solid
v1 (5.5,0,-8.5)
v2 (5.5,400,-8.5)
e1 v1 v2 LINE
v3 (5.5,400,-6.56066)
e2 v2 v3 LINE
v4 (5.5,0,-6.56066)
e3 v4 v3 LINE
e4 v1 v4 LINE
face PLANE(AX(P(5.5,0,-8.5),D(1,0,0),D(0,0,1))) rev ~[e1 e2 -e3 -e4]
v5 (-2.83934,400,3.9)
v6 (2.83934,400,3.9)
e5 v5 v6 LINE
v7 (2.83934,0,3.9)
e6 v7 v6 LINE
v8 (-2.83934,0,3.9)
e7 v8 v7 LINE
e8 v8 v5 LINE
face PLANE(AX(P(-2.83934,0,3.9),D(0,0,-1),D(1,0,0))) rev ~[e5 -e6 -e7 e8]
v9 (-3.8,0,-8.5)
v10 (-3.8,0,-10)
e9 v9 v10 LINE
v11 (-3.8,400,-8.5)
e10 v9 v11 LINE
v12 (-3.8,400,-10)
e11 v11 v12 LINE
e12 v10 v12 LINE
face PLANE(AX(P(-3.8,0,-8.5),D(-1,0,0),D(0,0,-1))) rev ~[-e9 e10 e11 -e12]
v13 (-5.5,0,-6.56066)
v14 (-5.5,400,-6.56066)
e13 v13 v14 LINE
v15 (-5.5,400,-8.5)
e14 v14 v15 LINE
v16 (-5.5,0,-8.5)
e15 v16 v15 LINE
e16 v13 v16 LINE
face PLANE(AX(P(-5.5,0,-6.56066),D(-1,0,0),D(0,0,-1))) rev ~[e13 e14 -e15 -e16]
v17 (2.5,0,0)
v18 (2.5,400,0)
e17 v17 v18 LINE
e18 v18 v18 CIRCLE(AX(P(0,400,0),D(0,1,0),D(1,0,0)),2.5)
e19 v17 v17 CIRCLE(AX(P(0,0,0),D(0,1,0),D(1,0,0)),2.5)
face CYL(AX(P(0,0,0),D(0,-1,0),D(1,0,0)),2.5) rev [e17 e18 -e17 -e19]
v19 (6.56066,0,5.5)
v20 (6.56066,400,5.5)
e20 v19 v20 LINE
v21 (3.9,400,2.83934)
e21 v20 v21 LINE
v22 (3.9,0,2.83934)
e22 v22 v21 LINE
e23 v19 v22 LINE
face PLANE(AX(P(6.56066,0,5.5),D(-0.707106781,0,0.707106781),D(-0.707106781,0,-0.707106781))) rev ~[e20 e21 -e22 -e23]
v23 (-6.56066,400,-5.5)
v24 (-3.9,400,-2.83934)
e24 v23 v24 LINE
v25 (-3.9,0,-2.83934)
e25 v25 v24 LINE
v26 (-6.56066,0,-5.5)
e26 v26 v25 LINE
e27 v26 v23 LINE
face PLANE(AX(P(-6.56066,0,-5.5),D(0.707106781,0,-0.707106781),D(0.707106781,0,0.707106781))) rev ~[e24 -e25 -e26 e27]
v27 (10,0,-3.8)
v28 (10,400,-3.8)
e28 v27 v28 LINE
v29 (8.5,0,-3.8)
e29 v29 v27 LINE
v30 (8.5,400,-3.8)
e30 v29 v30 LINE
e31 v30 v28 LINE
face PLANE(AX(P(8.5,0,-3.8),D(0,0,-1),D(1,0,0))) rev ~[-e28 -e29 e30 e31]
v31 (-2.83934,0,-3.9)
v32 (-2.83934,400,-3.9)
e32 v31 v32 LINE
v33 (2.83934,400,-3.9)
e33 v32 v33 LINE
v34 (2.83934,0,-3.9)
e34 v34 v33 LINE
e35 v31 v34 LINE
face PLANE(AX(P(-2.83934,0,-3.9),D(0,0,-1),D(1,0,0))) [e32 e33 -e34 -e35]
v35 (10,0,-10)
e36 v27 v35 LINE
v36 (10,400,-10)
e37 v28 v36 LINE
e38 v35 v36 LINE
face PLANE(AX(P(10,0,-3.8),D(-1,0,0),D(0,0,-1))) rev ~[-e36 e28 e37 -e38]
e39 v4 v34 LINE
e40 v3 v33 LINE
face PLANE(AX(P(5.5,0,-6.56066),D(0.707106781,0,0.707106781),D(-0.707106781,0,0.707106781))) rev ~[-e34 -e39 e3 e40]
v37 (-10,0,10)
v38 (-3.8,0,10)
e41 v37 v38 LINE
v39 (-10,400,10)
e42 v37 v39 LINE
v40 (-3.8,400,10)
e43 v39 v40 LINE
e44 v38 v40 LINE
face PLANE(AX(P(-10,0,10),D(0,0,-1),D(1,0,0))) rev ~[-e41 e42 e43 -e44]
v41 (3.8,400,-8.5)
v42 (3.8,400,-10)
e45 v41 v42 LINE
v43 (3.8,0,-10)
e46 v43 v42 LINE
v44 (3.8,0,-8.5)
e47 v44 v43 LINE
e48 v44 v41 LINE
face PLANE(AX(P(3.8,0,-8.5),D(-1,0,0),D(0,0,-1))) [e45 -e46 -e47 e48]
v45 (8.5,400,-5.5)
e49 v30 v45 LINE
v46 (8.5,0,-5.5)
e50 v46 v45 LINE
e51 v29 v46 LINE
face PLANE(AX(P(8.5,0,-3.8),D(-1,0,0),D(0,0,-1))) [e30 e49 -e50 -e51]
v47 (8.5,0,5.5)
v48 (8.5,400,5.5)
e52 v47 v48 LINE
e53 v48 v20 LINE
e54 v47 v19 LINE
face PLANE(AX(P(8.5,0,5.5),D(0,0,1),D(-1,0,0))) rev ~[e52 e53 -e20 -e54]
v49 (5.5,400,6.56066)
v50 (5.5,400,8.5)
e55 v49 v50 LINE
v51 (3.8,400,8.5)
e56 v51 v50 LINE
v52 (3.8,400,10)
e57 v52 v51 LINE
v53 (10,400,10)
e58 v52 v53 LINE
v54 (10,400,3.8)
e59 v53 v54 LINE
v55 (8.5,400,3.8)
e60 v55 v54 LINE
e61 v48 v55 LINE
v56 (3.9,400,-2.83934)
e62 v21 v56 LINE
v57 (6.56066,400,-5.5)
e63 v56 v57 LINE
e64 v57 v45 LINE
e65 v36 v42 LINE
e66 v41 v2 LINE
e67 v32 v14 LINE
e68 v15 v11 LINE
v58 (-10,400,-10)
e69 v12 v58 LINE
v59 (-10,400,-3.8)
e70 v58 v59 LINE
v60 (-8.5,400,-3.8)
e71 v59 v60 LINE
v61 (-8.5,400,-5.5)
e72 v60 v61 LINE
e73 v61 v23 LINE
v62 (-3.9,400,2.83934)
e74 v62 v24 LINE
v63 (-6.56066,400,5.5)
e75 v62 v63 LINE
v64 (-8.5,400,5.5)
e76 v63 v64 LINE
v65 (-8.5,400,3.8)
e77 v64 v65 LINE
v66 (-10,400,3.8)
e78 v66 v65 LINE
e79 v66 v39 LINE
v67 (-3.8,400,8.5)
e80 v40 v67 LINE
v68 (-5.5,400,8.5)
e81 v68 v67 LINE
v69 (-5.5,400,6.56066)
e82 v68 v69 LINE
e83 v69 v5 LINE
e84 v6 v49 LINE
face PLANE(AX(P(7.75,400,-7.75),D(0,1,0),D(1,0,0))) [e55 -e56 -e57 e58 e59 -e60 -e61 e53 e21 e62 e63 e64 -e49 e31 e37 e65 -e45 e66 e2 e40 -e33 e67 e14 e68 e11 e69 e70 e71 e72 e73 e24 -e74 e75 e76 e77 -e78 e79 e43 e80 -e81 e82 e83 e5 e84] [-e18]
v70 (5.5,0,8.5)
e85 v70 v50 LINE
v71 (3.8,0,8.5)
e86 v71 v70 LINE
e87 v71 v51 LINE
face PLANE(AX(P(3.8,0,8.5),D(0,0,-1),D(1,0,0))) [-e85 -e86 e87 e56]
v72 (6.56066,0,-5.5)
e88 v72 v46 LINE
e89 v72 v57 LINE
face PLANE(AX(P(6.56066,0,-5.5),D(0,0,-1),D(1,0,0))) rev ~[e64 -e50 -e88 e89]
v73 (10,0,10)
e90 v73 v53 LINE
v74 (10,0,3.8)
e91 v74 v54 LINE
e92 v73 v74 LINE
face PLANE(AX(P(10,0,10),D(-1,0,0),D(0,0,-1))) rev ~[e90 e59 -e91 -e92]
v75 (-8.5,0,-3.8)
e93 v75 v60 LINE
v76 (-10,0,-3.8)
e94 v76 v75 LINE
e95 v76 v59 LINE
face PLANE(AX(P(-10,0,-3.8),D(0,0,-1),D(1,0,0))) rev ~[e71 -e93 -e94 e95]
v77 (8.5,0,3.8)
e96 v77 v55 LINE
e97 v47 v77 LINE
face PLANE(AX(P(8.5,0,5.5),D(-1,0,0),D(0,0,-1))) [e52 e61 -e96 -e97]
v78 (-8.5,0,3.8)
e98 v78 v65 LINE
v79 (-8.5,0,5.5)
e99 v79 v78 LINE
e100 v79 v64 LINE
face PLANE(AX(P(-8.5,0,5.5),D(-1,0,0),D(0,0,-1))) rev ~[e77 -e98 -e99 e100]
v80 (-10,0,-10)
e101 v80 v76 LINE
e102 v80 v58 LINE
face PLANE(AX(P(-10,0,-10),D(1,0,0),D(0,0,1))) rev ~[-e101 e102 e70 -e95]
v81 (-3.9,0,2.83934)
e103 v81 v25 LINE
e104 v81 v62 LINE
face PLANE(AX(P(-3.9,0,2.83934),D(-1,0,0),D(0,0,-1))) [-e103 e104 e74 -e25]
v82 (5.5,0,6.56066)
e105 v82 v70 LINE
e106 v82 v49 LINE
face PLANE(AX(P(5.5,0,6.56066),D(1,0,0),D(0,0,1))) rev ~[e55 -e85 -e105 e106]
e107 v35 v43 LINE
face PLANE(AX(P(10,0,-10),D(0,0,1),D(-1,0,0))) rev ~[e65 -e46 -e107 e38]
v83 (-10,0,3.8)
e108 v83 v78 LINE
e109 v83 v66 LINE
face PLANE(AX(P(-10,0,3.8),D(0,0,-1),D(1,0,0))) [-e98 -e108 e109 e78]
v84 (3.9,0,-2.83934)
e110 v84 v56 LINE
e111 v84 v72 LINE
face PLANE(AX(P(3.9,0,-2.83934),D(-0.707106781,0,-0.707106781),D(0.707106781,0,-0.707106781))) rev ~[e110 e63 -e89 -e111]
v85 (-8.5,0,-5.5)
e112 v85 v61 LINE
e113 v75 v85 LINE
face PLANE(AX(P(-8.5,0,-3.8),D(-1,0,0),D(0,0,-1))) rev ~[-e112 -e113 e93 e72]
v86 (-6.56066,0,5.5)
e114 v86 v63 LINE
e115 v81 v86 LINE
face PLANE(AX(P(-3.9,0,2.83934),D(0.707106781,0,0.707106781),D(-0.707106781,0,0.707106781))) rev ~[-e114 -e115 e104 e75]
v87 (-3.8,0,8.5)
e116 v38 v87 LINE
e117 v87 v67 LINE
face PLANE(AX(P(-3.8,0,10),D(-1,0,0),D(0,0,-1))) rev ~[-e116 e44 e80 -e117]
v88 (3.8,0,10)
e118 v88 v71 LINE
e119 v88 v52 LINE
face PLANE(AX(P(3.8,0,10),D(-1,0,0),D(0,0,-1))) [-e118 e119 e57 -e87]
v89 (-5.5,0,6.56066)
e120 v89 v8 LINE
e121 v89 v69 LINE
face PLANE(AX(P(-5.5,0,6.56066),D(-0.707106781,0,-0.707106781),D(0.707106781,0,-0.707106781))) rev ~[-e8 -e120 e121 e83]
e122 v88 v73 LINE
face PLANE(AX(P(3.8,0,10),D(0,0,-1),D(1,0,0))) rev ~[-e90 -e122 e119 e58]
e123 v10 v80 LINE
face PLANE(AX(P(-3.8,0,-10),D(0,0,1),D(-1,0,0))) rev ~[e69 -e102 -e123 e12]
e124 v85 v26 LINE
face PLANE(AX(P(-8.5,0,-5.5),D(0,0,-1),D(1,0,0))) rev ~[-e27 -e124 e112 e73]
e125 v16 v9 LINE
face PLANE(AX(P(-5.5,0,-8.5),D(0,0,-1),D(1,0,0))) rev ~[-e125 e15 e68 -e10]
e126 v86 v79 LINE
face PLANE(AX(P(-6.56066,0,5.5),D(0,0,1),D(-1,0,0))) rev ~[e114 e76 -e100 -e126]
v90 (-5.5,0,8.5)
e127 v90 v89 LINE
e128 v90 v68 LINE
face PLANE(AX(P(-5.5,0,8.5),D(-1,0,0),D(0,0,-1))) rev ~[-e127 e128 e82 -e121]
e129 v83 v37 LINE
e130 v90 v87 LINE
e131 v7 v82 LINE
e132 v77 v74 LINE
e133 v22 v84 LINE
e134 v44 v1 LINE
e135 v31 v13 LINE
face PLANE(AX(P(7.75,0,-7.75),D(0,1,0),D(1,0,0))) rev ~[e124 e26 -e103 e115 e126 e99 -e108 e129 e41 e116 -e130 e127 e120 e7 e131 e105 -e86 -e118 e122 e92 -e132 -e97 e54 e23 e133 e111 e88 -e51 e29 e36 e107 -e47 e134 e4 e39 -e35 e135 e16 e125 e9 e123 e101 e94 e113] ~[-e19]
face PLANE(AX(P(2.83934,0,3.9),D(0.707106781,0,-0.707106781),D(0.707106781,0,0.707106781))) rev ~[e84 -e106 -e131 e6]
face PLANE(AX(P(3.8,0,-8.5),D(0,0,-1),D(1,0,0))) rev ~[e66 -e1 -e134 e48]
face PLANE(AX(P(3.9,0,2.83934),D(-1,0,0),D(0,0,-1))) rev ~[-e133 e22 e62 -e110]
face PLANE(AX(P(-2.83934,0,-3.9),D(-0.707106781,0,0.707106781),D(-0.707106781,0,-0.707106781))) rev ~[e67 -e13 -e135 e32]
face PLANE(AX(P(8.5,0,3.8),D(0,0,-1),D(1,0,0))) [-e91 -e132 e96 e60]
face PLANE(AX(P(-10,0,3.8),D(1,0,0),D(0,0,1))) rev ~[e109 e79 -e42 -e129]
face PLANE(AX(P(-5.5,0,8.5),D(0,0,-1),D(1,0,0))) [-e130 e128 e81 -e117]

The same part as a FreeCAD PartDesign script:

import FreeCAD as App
import Part
import Sketcher


def add_polygon(sketch, points):
    """Adds a closed chain of lines whose ends are joined by coincident constraints."""
    first, n = sketch.GeometryCount, len(points)
    for a, b in zip(points, points[1:] + points[:1]):
        sketch.addGeometry(Part.LineSegment(App.Vector(*a, 0), App.Vector(*b, 0)), False)
    for i in range(n):
        sketch.addConstraint(Sketcher.Constraint("Coincident", first + i, 2, first + (i + 1) % n, 1))

doc = App.newDocument("Part")
body = doc.addObject("PartDesign::Body", "Body")

# Sketch on XZ plane
sketch1 = body.newObject("Sketcher::SketchObject", "Sketch")
sketch1.AttachmentSupport = (doc.getObject("XZ_Plane"), [""])
sketch1.MapMode = "FlatFace"
add_polygon(sketch1, [(6.56066, -5.5), (8.5, -5.5), (8.5, -3.8), (10, -3.8), (10, -10), (3.8, -10), (3.8, -8.5), (5.5, -8.5), (5.5, -6.56066), (2.83934, -3.9), (-2.83934, -3.9), (-5.5, -6.56066), (-5.5, -8.5), (-3.8, -8.5), (-3.8, -10), (-10, -10), (-10, -3.8), (-8.5, -3.8), (-8.5, -5.5), (-6.56066, -5.5), (-3.9, -2.83934), (-3.9, 2.83934), (-6.56066, 5.5), (-8.5, 5.5), (-8.5, 3.8), (-10, 3.8), (-10, 10), (-3.8, 10), (-3.8, 8.5), (-5.5, 8.5), (-5.5, 6.56066), (-2.83934, 3.9), (2.83934, 3.9), (5.5, 6.56066), (5.5, 8.5), (3.8, 8.5), (3.8, 10), (10, 10), (10, 3.8), (8.5, 3.8), (8.5, 5.5), (6.56066, 5.5), (3.9, 2.83934), (3.9, -2.83934)])  # lines 0-43
sketch1.addGeometry(Part.Circle(App.Vector(0, 0, 0), App.Vector(0, 0, 1), 2.5), False)  # 44
sketch1.addConstraint(Sketcher.Constraint("Horizontal", 0))
sketch1.addConstraint(Sketcher.Constraint("Vertical", 1))
sketch1.addConstraint(Sketcher.Constraint("Horizontal", 2))
sketch1.addConstraint(Sketcher.Constraint("Vertical", 3))
sketch1.addConstraint(Sketcher.Constraint("Horizontal", 4))
sketch1.addConstraint(Sketcher.Constraint("Vertical", 5))
sketch1.addConstraint(Sketcher.Constraint("Horizontal", 6))
sketch1.addConstraint(Sketcher.Constraint("Vertical", 7))
sketch1.addConstraint(Sketcher.Constraint("Horizontal", 9))
sketch1.addConstraint(Sketcher.Constraint("Vertical", 11))
sketch1.addConstraint(Sketcher.Constraint("Horizontal", 12))
sketch1.addConstraint(Sketcher.Constraint("Vertical", 13))
sketch1.addConstraint(Sketcher.Constraint("Horizontal", 14))
sketch1.addConstraint(Sketcher.Constraint("Vertical", 15))
sketch1.addConstraint(Sketcher.Constraint("Horizontal", 16))
sketch1.addConstraint(Sketcher.Constraint("Vertical", 17))
sketch1.addConstraint(Sketcher.Constraint("Horizontal", 18))
sketch1.addConstraint(Sketcher.Constraint("Vertical", 20))
sketch1.addConstraint(Sketcher.Constraint("Horizontal", 22))
sketch1.addConstraint(Sketcher.Constraint("Vertical", 23))
sketch1.addConstraint(Sketcher.Constraint("Horizontal", 24))
sketch1.addConstraint(Sketcher.Constraint("Vertical", 25))
sketch1.addConstraint(Sketcher.Constraint("Horizontal", 26))
sketch1.addConstraint(Sketcher.Constraint("Vertical", 27))
sketch1.addConstraint(Sketcher.Constraint("Horizontal", 28))
sketch1.addConstraint(Sketcher.Constraint("Vertical", 29))
sketch1.addConstraint(Sketcher.Constraint("Horizontal", 31))
sketch1.addConstraint(Sketcher.Constraint("Vertical", 33))
sketch1.addConstraint(Sketcher.Constraint("Horizontal", 34))
sketch1.addConstraint(Sketcher.Constraint("Vertical", 35))
sketch1.addConstraint(Sketcher.Constraint("Horizontal", 36))
sketch1.addConstraint(Sketcher.Constraint("Vertical", 37))
sketch1.addConstraint(Sketcher.Constraint("Horizontal", 38))
sketch1.addConstraint(Sketcher.Constraint("Vertical", 39))
sketch1.addConstraint(Sketcher.Constraint("Horizontal", 40))
sketch1.addConstraint(Sketcher.Constraint("Vertical", 42))
sketch1.addConstraint(Sketcher.Constraint("Coincident", 44, 3, -1, 1))
sketch1.addConstraint(Sketcher.Constraint("Symmetric", 0, 2, 22, 2, -1, 1))
sketch1.addConstraint(Sketcher.Constraint("Symmetric", 2, 2, 24, 2, -1, 1))
sketch1.addConstraint(Sketcher.Constraint("Symmetric", 4, 2, 26, 2, -1, 1))
sketch1.addConstraint(Sketcher.Constraint("Symmetric", 6, 2, 28, 2, -1, 1))
sketch1.addConstraint(Sketcher.Constraint("Symmetric", 8, 2, 30, 2, -1, 1))
sketch1.addConstraint(Sketcher.Constraint("Symmetric", 10, 2, 32, 2, -1, 1))
sketch1.addConstraint(Sketcher.Constraint("Symmetric", 12, 2, 34, 2, -1, 1))
sketch1.addConstraint(Sketcher.Constraint("Symmetric", 14, 2, 36, 2, -1, 1))
sketch1.addConstraint(Sketcher.Constraint("Symmetric", 16, 2, 38, 2, -1, 1))
sketch1.addConstraint(Sketcher.Constraint("Symmetric", 18, 2, 40, 2, -1, 1))
sketch1.addConstraint(Sketcher.Constraint("Symmetric", 19, 2, 41, 2, -1, 1))
sketch1.addConstraint(Sketcher.Constraint("Symmetric", 7, 2, 10, 2, -2))
sketch1.addConstraint(Sketcher.Constraint("Symmetric", 5, 2, 12, 2, -2))
sketch1.addConstraint(Sketcher.Constraint("Symmetric", 3, 2, 14, 2, -2))
sketch1.addConstraint(Sketcher.Constraint("Symmetric", 1, 2, 16, 2, -2))
sketch1.addConstraint(Sketcher.Constraint("Symmetric", 21, 2, 40, 2, -2))
sketch1.addConstraint(Sketcher.Constraint("Perpendicular", 8, 10))
sketch1.addConstraint(Sketcher.Constraint("Parallel", 10, 19))
sketch1.addConstraint(Sketcher.Constraint("Perpendicular", 19, 21))
sketch1.addConstraint(Sketcher.Constraint("Parallel", 21, 30))
sketch1.addConstraint(Sketcher.Constraint("Perpendicular", 30, 32))
sketch1.addConstraint(Sketcher.Constraint("Perpendicular", 41, 43))
sketch1.addConstraint(Sketcher.Constraint("Horizontal", 20, 2, 41, 2))
sketch1.addConstraint(Sketcher.Constraint("Horizontal", 19, 2, 42, 2))
sketch1.addConstraint(Sketcher.Constraint("Equal", 34, 1))
sketch1.addConstraint(Sketcher.Constraint("Equal", 36, 3))
sketch1.addConstraint(Sketcher.Constraint("Equal", 38, 5))
sketch1.addConstraint(Sketcher.Constraint("Equal", 40, 7))
sketch1.addConstraint(Sketcher.Constraint("Equal", 31, 20))
sketch1.addConstraint(Sketcher.Constraint("Equal", 10, 19))
sketch1.addConstraint(Sketcher.Constraint("Diameter", 44, 5.0))
sketch1.addConstraint(Sketcher.Constraint("DistanceX", 2, 1, 2, 2, 1.5))
sketch1.addConstraint(Sketcher.Constraint("DistanceX", 4, 2, 4, 1, 6.2))
sketch1.addConstraint(Sketcher.Constraint("DistanceX", 6, 1, 6, 2, 1.7))
sketch1.addConstraint(Sketcher.Constraint("DistanceX", -1, 1, 2, 2, 10.0))
sketch1.addConstraint(Sketcher.Constraint("DistanceY", 8, 2, -1, 1, 3.9))
sketch1.addConstraint(Sketcher.Constraint("DistanceX", 0, 1, 0, 2, 1.93934))
pad1 = body.newObject("PartDesign::Pad", "Pad")
pad1.Profile = sketch1
pad1.Length = 400
pad1.Reversed = True

doc.recompute()
